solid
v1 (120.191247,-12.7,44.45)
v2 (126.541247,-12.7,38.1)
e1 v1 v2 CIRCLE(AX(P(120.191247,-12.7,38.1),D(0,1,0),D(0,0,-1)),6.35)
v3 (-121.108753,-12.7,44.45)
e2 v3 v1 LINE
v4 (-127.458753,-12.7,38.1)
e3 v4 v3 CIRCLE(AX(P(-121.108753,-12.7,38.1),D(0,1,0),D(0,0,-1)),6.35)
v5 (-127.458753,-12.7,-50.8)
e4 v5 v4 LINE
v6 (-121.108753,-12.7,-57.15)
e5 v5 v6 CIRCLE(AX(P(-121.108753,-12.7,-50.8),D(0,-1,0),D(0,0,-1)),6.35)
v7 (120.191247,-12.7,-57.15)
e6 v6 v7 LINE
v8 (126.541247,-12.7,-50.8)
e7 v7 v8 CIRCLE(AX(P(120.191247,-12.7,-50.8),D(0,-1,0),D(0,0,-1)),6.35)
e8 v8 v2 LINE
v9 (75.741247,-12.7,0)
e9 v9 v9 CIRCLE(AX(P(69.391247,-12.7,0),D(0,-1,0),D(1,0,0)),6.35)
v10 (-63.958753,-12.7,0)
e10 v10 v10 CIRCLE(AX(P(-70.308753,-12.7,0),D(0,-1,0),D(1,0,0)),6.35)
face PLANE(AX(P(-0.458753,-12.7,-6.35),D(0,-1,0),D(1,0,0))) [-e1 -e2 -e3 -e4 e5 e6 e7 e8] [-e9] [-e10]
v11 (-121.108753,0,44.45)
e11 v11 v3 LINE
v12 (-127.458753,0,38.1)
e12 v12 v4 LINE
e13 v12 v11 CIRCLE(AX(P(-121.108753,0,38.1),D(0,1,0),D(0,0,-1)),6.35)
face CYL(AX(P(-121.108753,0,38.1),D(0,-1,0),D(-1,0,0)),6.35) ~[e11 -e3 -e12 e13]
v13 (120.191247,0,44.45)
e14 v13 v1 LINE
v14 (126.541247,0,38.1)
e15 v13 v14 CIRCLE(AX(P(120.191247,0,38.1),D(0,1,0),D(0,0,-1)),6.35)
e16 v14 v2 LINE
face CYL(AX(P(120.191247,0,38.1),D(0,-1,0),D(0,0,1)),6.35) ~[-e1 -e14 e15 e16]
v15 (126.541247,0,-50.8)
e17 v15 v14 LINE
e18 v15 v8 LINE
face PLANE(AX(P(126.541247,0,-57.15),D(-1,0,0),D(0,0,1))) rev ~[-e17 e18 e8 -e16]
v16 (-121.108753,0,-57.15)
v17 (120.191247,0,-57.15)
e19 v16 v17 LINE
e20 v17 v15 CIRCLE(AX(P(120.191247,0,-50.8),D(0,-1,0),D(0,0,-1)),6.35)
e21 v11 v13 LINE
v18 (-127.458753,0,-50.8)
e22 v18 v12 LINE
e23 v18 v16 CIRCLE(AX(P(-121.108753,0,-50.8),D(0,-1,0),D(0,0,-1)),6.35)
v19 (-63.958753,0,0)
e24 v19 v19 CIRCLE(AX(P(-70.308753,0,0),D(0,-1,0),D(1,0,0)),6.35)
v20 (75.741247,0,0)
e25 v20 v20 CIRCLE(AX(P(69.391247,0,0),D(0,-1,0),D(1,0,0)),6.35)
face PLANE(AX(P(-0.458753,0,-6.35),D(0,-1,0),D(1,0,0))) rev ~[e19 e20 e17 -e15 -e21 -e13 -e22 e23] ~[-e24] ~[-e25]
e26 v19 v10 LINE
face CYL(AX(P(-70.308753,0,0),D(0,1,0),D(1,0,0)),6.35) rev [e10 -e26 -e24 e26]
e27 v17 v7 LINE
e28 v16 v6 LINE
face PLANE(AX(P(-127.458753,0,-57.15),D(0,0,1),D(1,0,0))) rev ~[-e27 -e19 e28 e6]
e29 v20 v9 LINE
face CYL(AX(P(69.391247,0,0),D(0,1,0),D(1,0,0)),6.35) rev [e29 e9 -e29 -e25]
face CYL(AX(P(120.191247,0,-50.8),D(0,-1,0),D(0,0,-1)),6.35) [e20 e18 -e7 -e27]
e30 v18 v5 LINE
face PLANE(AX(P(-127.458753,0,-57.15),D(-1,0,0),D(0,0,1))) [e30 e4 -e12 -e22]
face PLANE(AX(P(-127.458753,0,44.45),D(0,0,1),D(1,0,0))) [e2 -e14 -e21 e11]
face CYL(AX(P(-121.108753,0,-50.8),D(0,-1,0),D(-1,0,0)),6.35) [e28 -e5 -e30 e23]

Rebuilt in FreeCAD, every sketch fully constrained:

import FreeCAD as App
import Part
import Sketcher
from FreeCAD import Vector
Q = App.Units.Quantity


def edges_at(feature, points):
    """Names of the edges that pass closest to the given points."""
    edges = feature.Shape.Edges
    near = lambda p: min(range(len(edges)), key=lambda i: edges[i].distToShape(Part.Vertex(*p))[0])
    return sorted({f"Edge{near(p) + 1}" for p in points})

doc = App.newDocument("Part")
params = doc.addObject("Spreadsheet::Sheet", "Params")
for row, (alias, value) in enumerate([
    ("sketch1_diameter", "0.5 in"),
    ("sketch1_width", "10 in"),
    ("sketch1_height", "4 in"),
    ("pad1_length", "0.5 in"),
    ("fillet_radius", "0.25 in"),
], start=1):
    params.set(f"A{row}", alias)
    params.set(f"B{row}", "=" + value)
    params.setAlias(f"B{row}", alias)

body = doc.addObject("PartDesign::Body", "Body")

# Sketch on XZ plane
sketch1 = body.newObject("Sketcher::SketchObject", "Sketch")
sketch1.AttachmentSupport = (doc.getObject("XZ_Plane"), [""])
sketch1.MapMode = "FlatFace"
sketch1.addGeometry([
    Part.LineSegment(Vector(-127.458753, 44.45, 0), Vector(-127.458753, -57.15, 0)),  # 0
    Part.LineSegment(Vector(-127.458753, -57.15, 0), Vector(126.541247, -57.15, 0)),  # 1
    Part.LineSegment(Vector(126.541247, -57.15, 0), Vector(126.541247, 44.45, 0)),  # 2
    Part.LineSegment(Vector(126.541247, 44.45, 0), Vector(-127.458753, 44.45, 0)),  # 3
    Part.Circle(Vector(-70.308753, 0, 0), Vector(0, 0, 1), 6.35),  # 4
    Part.Circle(Vector(69.391247, 0, 0), Vector(0, 0, 1), 6.35),  # 5
], False)
sketch1.addConstraint([
    Sketcher.Constraint("Coincident", 0, 2, 1, 1),
    Sketcher.Constraint("Coincident", 1, 2, 2, 1),
    Sketcher.Constraint("Coincident", 2, 2, 3, 1),
    Sketcher.Constraint("Coincident", 3, 2, 0, 1),
    Sketcher.Constraint("Vertical", 0),
    Sketcher.Constraint("Horizontal", 1),
    Sketcher.Constraint("Vertical", 2),
    Sketcher.Constraint("Horizontal", 3),
    Sketcher.Constraint("Equal", 4, 5),
    Sketcher.Constraint("PointOnObject", 4, 3, -1),
    Sketcher.Constraint("PointOnObject", 5, 3, -1),
    Sketcher.Constraint("Diameter", 4, Q("0.5 in")),
    Sketcher.Constraint("DistanceX", 1, 1, 1, 2, Q("10 in")),
    Sketcher.Constraint("DistanceY", 0, 2, 0, 1, Q("4 in")),
    Sketcher.Constraint("DistanceX", 4, 3, 5, 3, Q("5.5 in")),
    Sketcher.Constraint("DistanceY", 0, 2, -1, 1, Q("2.25 in")),
    Sketcher.Constraint("DistanceX", 0, 2, 4, 3, Q("2.25 in")),
    Sketcher.Constraint("DistanceX", 4, 3, -1, 1, 70.308753),
])
sketch1.setExpression("Constraints[11]", "Params.sketch1_diameter")
sketch1.setExpression("Constraints[12]", "Params.sketch1_width")
sketch1.setExpression("Constraints[13]", "Params.sketch1_height")
pad1 = body.newObject("PartDesign::Pad", "Pad")
pad1.Profile = sketch1
pad1.setExpression("Length", "Params.pad1_length")
doc.recompute()

fillet = body.newObject("PartDesign::Fillet", "Fillet")
fillet.Base = (pad1, edges_at(pad1, [
    (-127.459, -6.35, 44.45),
    (126.541, -6.35, 44.45),
    (-127.459, -6.35, -57.15),
    (126.541, -6.35, -57.15),
]))
fillet.setExpression("Radius", "Params.fillet_radius")

doc.recompute()
